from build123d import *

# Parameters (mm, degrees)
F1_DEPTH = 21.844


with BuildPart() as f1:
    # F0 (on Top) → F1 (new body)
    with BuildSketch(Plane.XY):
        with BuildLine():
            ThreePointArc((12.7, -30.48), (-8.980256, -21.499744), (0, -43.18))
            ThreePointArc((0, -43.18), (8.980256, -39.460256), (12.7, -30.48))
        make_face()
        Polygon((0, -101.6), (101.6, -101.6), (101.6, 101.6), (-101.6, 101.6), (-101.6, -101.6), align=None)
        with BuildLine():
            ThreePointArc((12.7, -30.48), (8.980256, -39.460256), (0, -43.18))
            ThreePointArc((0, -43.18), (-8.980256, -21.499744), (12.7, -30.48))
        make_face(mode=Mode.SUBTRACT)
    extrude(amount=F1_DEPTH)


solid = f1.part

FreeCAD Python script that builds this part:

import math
import FreeCAD as App
import Part
import Sketcher
from FreeCAD import Vector
Q = App.Units.Quantity


def add_polygon(sketch, points):
    """Adds a closed chain of lines whose ends are joined by coincident constraints."""
    first, n = sketch.GeometryCount, len(points)
    for a, b in zip(points, points[1:] + points[:1]):
        sketch.addGeometry(Part.LineSegment(App.Vector(*a, 0), App.Vector(*b, 0)), False)
    for i in range(n):
        sketch.addConstraint(Sketcher.Constraint("Coincident", first + i, 2, first + (i + 1) % n, 1))

doc = App.newDocument("Part")
body = doc.addObject("PartDesign::Body", "Body")

# Sketch on XY plane
sketch1 = body.newObject("Sketcher::SketchObject", "Sketch")
sketch1.AttachmentSupport = (doc.getObject("XY_Plane"), [""])
sketch1.MapMode = "FlatFace"
add_polygon(sketch1, [(102, -102), (102, 102), (-102, 102), (-102, -102)])  # lines 0-3
sketch1.addGeometry(Part.ArcOfCircle(Part.Circle(Vector(0, -30, 0), Vector(0, 0, 1), 13), math.radians(0), math.radians(270)), False)  # 4
sketch1.addGeometry(Part.ArcOfCircle(Part.Circle(Vector(0, -30, 0), Vector(0, 0, 1), 13), math.radians(-90), math.radians(0)), False)  # 5
sketch1.addConstraint([
    Sketcher.Constraint("Tangent", 4, 1, 5, 2),
    Sketcher.Constraint("Coincident", 5, 1, 4, 2),
    Sketcher.Constraint("Vertical", 0),
    Sketcher.Constraint("Horizontal", 1),
    Sketcher.Constraint("Vertical", 2),
    Sketcher.Constraint("Horizontal", 3),
    Sketcher.Constraint("Symmetric", 0, 2, 2, 2, -1, 1),
    Sketcher.Constraint("PointOnObject", 4, 3, -2),
    Sketcher.Constraint("PointOnObject", 5, 1, -2),
    Sketcher.Constraint("Horizontal", 5, 3, 4, 1),
    Sketcher.Constraint("Equal", 3, 0),
    Sketcher.Constraint("Radius", 4, Q("0.5 in")),
    Sketcher.Constraint("DistanceX", 1, 2, 1, 1, Q("8 in")),
    Sketcher.Constraint("DistanceY", 4, 3, -1, 1, Q("1.2 in")),
])
pad1 = body.newObject("PartDesign::Pad", "Pad")
pad1.Profile = sketch1
pad1.Length = Q("0.86 in")

doc.recompute()
